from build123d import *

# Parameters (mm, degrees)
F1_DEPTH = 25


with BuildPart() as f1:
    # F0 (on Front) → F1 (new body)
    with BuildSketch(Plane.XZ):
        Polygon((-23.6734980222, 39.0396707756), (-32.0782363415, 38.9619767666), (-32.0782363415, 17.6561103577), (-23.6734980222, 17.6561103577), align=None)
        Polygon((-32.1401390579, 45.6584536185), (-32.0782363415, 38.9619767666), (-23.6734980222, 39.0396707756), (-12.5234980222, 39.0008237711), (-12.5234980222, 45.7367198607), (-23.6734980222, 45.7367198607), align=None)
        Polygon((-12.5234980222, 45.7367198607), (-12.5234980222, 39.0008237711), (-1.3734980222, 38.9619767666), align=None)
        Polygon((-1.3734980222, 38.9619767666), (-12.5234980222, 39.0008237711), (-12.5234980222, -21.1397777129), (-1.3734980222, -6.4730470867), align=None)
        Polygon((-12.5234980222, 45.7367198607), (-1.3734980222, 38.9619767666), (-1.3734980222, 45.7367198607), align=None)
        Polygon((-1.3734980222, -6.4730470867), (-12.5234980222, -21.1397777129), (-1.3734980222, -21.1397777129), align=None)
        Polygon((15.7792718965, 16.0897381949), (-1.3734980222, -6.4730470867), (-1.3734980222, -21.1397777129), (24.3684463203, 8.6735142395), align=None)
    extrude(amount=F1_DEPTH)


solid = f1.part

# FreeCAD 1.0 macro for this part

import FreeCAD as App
import Part
import Sketcher
from FreeCAD import Vector
Q = App.Units.Quantity


def add_polygon(sketch, points):
    """Adds a closed chain of lines whose ends are joined by coincident constraints."""
    first, n = sketch.GeometryCount, len(points)
    for a, b in zip(points, points[1:] + points[:1]):
        sketch.addGeometry(Part.LineSegment(App.Vector(*a, 0), App.Vector(*b, 0)), False)
    for i in range(n):
        sketch.addConstraint(Sketcher.Constraint("Coincident", first + i, 2, first + (i + 1) % n, 1))

doc = App.newDocument("Part")
body = doc.addObject("PartDesign::Body", "Body")

sketch1 = body.newObject("Sketcher::SketchObject", "Sketch")
sketch1.AttachmentSupport = (doc.getObject("XZ_Plane"), [""])
sketch1.MapMode = "FlatFace"
add_polygon(sketch1, [(-32, 39), (-32, 18), (-24, 18), (-24, 39), (-13, 39), (-13, -21), (-1, -21), (24, 9), (16, 16), (-1, -6), (-1, 46), (-24, 46), (-32, 46)])
sketch1.addConstraint([
    Sketcher.Constraint("Vertical", 0),
    Sketcher.Constraint("Horizontal", 1),
    Sketcher.Constraint("Vertical", 2),
    Sketcher.Constraint("Vertical", 4),
    Sketcher.Constraint("Horizontal", 5),
    Sketcher.Constraint("Vertical", 9),
    Sketcher.Constraint("Horizontal", 10),
    Sketcher.Constraint("Perpendicular", 6, 7),
    Sketcher.Constraint("Perpendicular", 11, 12),
    Sketcher.Constraint("Vertical", 5, 2, 8, 2),
    Sketcher.Constraint("Vertical", 2, 2, 10, 2),
    Sketcher.Constraint("DistanceX", 10, 2, 10, 1, Q("22.3 mm")),
    Sketcher.Constraint("DistanceX", 5, 1, 5, 2, Q("11.15 mm")),
    Sketcher.Constraint("DistanceY", 4, 2, 4, 1, Q("60.140601 mm")),
    Sketcher.Constraint("DistanceX", 1, 1, 1, 2, Q("8.404738 mm")),
    Sketcher.Constraint("DistanceY", 2, 1, 2, 2, Q("21.38356 mm")),
    Sketcher.Constraint("DistanceX", 1, 2, -1, 1, Q("23.673498 mm")),
    Sketcher.Constraint("Distance", 6, Q("39.388832 mm")),
    Sketcher.Constraint("Distance", 8, Q("28.342491 mm")),
    Sketcher.Constraint("DistanceY", 0, 2, 0, 1, Q("21.305866 mm")),
    Sketcher.Constraint("DistanceY", 9, 1, 9, 2, Q("52.209767 mm")),
    Sketcher.Constraint("DistanceY", -1, 1, 0, 2, Q("17.65611 mm")),
    Sketcher.Constraint("DistanceX", -1, 1, 7, 2, Q("15.779272 mm")),
    Sketcher.Constraint("DistanceY", -1, 1, 7, 2, Q("16.089738 mm")),
    Sketcher.Constraint("DistanceX", 11, 2, -1, 1, Q("32.140139 mm")),
    Sketcher.Constraint("DistanceY", 4, 2, 1, 2, Q("38.795888 mm")),
])
pad1 = body.newObject("PartDesign::Pad", "Pad")
pad1.Profile = sketch1
pad1.Length = 25

doc.recompute()
